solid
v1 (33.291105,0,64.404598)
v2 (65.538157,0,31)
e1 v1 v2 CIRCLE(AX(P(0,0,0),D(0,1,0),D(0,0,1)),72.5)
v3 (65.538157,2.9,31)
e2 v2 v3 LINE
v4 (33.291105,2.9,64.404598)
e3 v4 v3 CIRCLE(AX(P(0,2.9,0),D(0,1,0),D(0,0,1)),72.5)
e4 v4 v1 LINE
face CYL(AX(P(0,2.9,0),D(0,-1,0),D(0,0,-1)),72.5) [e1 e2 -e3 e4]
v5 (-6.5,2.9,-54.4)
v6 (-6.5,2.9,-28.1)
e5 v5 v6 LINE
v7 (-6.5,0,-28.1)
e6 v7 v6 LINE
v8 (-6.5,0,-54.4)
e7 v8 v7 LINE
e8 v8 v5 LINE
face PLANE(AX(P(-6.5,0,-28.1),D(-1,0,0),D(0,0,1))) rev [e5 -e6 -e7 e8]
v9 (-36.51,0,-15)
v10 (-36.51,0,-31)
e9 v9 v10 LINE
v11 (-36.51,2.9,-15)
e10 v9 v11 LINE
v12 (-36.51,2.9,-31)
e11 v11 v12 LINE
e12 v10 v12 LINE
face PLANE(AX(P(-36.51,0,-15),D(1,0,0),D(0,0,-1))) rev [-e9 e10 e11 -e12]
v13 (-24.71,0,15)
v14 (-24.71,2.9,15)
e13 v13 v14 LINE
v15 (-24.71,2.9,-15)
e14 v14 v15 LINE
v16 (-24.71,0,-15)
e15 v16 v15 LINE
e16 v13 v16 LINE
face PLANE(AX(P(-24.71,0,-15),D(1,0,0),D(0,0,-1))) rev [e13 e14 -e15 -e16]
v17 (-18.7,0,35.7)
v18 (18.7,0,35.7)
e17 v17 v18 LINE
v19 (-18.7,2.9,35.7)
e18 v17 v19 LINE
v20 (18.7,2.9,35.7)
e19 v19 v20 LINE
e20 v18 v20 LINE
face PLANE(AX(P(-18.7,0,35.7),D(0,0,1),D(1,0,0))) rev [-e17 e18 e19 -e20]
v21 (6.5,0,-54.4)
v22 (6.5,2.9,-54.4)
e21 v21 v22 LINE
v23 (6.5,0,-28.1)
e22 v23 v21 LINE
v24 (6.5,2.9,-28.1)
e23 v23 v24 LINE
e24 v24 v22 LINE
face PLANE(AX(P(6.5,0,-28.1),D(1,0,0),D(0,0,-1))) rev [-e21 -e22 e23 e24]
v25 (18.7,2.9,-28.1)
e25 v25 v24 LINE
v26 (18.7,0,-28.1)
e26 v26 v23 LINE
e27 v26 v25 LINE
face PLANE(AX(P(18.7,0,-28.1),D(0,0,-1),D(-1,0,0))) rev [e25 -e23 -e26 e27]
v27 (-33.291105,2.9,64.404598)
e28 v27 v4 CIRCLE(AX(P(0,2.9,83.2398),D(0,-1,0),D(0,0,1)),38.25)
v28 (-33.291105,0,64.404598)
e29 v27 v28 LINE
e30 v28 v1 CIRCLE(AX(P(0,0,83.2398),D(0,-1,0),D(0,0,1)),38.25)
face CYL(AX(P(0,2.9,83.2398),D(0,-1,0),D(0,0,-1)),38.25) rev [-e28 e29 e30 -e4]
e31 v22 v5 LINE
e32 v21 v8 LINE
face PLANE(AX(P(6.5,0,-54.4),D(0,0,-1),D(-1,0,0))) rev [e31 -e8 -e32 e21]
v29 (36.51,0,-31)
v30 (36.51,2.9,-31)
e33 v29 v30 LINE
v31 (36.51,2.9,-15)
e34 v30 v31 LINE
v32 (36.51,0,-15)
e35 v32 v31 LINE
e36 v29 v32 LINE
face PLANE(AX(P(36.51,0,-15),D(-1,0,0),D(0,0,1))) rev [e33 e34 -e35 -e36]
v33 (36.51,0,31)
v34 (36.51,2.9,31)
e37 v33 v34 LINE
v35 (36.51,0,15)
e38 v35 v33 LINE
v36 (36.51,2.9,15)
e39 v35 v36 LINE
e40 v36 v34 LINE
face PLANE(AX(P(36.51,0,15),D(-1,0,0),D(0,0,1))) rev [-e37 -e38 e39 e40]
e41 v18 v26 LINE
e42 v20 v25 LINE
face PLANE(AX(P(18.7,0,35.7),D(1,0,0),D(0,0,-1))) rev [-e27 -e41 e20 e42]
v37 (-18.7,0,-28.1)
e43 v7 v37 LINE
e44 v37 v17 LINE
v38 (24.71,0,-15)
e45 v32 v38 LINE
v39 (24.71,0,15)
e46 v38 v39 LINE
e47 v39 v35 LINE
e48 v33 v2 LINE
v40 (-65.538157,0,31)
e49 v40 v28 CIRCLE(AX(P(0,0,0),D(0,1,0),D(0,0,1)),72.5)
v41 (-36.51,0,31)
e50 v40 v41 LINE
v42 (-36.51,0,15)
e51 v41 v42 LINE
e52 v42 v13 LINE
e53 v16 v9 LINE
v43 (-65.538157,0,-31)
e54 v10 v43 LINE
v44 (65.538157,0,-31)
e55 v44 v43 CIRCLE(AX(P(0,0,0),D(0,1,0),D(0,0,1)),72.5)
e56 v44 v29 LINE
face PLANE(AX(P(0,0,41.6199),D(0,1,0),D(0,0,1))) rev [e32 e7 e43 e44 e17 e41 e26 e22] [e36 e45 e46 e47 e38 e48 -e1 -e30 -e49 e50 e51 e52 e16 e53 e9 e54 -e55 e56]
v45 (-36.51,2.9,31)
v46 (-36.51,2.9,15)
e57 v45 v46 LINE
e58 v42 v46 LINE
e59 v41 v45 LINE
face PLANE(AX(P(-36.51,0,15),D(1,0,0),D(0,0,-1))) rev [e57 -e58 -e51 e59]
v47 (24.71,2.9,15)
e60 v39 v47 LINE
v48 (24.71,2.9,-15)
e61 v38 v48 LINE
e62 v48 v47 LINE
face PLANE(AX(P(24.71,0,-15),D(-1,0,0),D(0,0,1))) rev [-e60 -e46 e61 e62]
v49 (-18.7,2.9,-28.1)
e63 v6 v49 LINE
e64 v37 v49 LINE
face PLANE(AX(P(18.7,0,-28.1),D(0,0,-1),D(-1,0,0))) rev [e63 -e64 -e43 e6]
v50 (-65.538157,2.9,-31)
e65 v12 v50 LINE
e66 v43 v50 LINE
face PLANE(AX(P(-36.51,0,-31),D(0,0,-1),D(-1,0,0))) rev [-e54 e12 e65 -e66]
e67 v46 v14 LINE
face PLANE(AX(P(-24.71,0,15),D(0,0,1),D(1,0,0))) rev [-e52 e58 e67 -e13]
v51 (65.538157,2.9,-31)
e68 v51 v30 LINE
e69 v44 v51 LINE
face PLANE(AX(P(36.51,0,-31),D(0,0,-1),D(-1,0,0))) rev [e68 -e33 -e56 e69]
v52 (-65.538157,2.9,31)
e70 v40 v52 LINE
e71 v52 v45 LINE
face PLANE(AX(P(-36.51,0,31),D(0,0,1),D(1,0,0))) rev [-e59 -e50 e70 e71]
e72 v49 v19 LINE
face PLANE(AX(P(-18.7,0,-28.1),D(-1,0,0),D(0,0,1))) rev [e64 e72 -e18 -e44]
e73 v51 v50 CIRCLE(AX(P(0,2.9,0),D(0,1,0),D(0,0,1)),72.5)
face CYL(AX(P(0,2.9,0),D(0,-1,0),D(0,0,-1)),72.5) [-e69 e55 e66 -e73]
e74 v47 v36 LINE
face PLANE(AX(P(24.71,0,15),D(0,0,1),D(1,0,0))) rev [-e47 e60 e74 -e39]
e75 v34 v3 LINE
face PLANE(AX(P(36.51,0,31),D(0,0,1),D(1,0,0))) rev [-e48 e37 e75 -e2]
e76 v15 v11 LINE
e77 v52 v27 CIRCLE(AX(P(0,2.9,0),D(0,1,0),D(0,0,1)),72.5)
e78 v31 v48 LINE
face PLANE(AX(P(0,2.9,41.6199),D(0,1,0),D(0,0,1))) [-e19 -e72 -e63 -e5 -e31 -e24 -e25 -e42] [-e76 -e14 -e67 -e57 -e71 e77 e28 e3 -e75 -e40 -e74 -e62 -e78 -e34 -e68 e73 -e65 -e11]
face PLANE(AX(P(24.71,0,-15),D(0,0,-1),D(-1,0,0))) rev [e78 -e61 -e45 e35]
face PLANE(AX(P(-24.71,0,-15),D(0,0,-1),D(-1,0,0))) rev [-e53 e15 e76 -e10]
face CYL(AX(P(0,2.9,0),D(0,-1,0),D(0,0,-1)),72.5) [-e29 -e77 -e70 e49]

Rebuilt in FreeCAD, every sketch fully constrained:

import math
import FreeCAD as App
import Part
import Sketcher
from FreeCAD import Vector
Q = App.Units.Quantity

doc = App.newDocument("Part")
body = doc.addObject("PartDesign::Body", "Body")

sketch1 = body.newObject("Sketcher::SketchObject", "Sketch")
sketch1.AttachmentSupport = (doc.getObject("XZ_Plane"), [""])
sketch1.MapMode = "FlatFace"
sketch1.addGeometry(Part.ArcOfCircle(Part.Circle(Vector(0, 0, 0), Vector(0, 0, 1), 72), math.radians(117), math.radians(423)), False)
sketch1.addGeometry(Part.ArcOfCircle(Part.Circle(Vector(0, 83, 0), Vector(0, 0, 1), 38), math.radians(-150), math.radians(-30)), False)
sketch1.addConstraint(Sketcher.Constraint("Coincident", 0, 1, 1, 1))
sketch1.addConstraint(Sketcher.Constraint("Coincident", 1, 2, 0, 2))
sketch1.addConstraint(Sketcher.Constraint("Coincident", 0, 3, -1, 1))
sketch1.addConstraint(Sketcher.Constraint("PointOnObject", 1, 3, -2))
sketch1.addConstraint(Sketcher.Constraint("Radius", 0, Q("72.5 mm")))
sketch1.addConstraint(Sketcher.Constraint("Radius", 1, Q("38.25 mm")))
sketch1.addConstraint(Sketcher.Constraint("DistanceY", -1, 1, 1, 3, Q("83.2398 mm")))
pad1 = body.newObject("PartDesign::Pad", "Pad")
pad1.Profile = sketch1
pad1.Length = 2.9
pad1.Reversed = True

sketch2 = body.newObject("Sketcher::SketchObject", "Sketch001")
sketch2.AttachmentSupport = (doc.getObject("XZ_Plane"), [""])
sketch2.MapMode = "FlatFace"
sketch2.AttachmentOffset = App.Placement(Vector(0, 0, -2.9), App.Rotation())
sketch2.addGeometry(Part.LineSegment(Vector(-19, -28, 0), Vector(-19, 36, 0)), False)
sketch2.addGeometry(Part.LineSegment(Vector(-19, 36, 0), Vector(19, 36, 0)), False)
sketch2.addGeometry(Part.LineSegment(Vector(19, 36, 0), Vector(19, -28, 0)), False)
sketch2.addGeometry(Part.LineSegment(Vector(19, -28, 0), Vector(-19, -28, 0)), False)
sketch2.addConstraint(Sketcher.Constraint("Coincident", 0, 2, 1, 1))
sketch2.addConstraint(Sketcher.Constraint("Coincident", 1, 2, 2, 1))
sketch2.addConstraint(Sketcher.Constraint("Coincident", 2, 2, 3, 1))
sketch2.addConstraint(Sketcher.Constraint("Coincident", 3, 2, 0, 1))
sketch2.addConstraint(Sketcher.Constraint("Vertical", 0))
sketch2.addConstraint(Sketcher.Constraint("Horizontal", 1))
sketch2.addConstraint(Sketcher.Constraint("Vertical", 2))
sketch2.addConstraint(Sketcher.Constraint("Horizontal", 3))
sketch2.addConstraint(Sketcher.Constraint("DistanceX", 1, 1, 1, 2, Q("37.4 mm")))
sketch2.addConstraint(Sketcher.Constraint("DistanceY", 0, 1, 0, 2, Q("63.8 mm")))
sketch2.addConstraint(Sketcher.Constraint("DistanceX", 0, 2, -1, 1, Q("18.7 mm")))
sketch2.addConstraint(Sketcher.Constraint("DistanceY", -1, 1, 0, 2, Q("35.7 mm")))
pocket1 = body.newObject("PartDesign::Pocket", "Pocket")
pocket1.Profile = sketch2
pocket1.Type = "ThroughAll"
pocket1.Reversed = True

sketch3 = body.newObject("Sketcher::SketchObject", "Sketch002")
sketch3.AttachmentSupport = (doc.getObject("XZ_Plane"), [""])
sketch3.MapMode = "FlatFace"
sketch3.AttachmentOffset = App.Placement(Vector(0, 0, -2.9), App.Rotation())
sketch3.addGeometry(Part.LineSegment(Vector(-37, 31, 0), Vector(-37, 15, 0)), False)
sketch3.addGeometry(Part.LineSegment(Vector(-37, 15, 0), Vector(-25, 15, 0)), False)
sketch3.addGeometry(Part.LineSegment(Vector(-25, 15, 0), Vector(-25, -15, 0)), False)
sketch3.addGeometry(Part.LineSegment(Vector(-25, -15, 0), Vector(-37, -15, 0)), False)
sketch3.addGeometry(Part.LineSegment(Vector(-37, -15, 0), Vector(-37, -31, 0)), False)
sketch3.addGeometry(Part.LineSegment(Vector(-37, -31, 0), Vector(-66, -31, 0)), False)
sketch3.addGeometry(Part.ArcOfCircle(Part.Circle(Vector(0, 0, 0), Vector(0, 0, 1), 73), math.radians(155), math.radians(205)), False)
sketch3.addGeometry(Part.LineSegment(Vector(-66, 31, 0), Vector(-37, 31, 0)), False)
sketch3.addGeometry(Part.LineSegment(Vector(66, -31, 0), Vector(37, -31, 0)), False)
sketch3.addGeometry(Part.LineSegment(Vector(37, -31, 0), Vector(37, -15, 0)), False)
sketch3.addGeometry(Part.LineSegment(Vector(37, -15, 0), Vector(25, -15, 0)), False)
sketch3.addGeometry(Part.LineSegment(Vector(25, -15, 0), Vector(25, 15, 0)), False)
sketch3.addGeometry(Part.LineSegment(Vector(25, 15, 0), Vector(37, 15, 0)), False)
sketch3.addGeometry(Part.LineSegment(Vector(37, 15, 0), Vector(37, 31, 0)), False)
sketch3.addGeometry(Part.LineSegment(Vector(37, 31, 0), Vector(66, 31, 0)), False)
sketch3.addGeometry(Part.ArcOfCircle(Part.Circle(Vector(0, 0, 0), Vector(0, 0, 1), 73), math.radians(-25), math.radians(25)), False)
sketch3.addConstraint(Sketcher.Constraint("Coincident", 0, 2, 1, 1))
sketch3.addConstraint(Sketcher.Constraint("Coincident", 1, 2, 2, 1))
sketch3.addConstraint(Sketcher.Constraint("Coincident", 2, 2, 3, 1))
sketch3.addConstraint(Sketcher.Constraint("Coincident", 3, 2, 4, 1))
sketch3.addConstraint(Sketcher.Constraint("Coincident", 4, 2, 5, 1))
sketch3.addConstraint(Sketcher.Constraint("Coincident", 5, 2, 6, 2))
sketch3.addConstraint(Sketcher.Constraint("Coincident", 6, 1, 7, 1))
sketch3.addConstraint(Sketcher.Constraint("Coincident", 7, 2, 0, 1))
sketch3.addConstraint(Sketcher.Constraint("Coincident", 8, 2, 9, 1))
sketch3.addConstraint(Sketcher.Constraint("Coincident", 9, 2, 10, 1))
sketch3.addConstraint(Sketcher.Constraint("Coincident", 10, 2, 11, 1))
sketch3.addConstraint(Sketcher.Constraint("Coincident", 11, 2, 12, 1))
sketch3.addConstraint(Sketcher.Constraint("Coincident", 12, 2, 13, 1))
sketch3.addConstraint(Sketcher.Constraint("Coincident", 13, 2, 14, 1))
sketch3.addConstraint(Sketcher.Constraint("Coincident", 14, 2, 15, 2))
sketch3.addConstraint(Sketcher.Constraint("Coincident", 15, 1, 8, 1))
sketch3.addConstraint(Sketcher.Constraint("Vertical", 0))
sketch3.addConstraint(Sketcher.Constraint("Horizontal", 1))
sketch3.addConstraint(Sketcher.Constraint("Vertical", 2))
sketch3.addConstraint(Sketcher.Constraint("Horizontal", 3))
sketch3.addConstraint(Sketcher.Constraint("Vertical", 4))
sketch3.addConstraint(Sketcher.Constraint("Horizontal", 5))
sketch3.addConstraint(Sketcher.Constraint("Horizontal", 7))
sketch3.addConstraint(Sketcher.Constraint("Horizontal", 8))
sketch3.addConstraint(Sketcher.Constraint("Vertical", 9))
sketch3.addConstraint(Sketcher.Constraint("Horizontal", 10))
sketch3.addConstraint(Sketcher.Constraint("Vertical", 11))
sketch3.addConstraint(Sketcher.Constraint("Horizontal", 12))
sketch3.addConstraint(Sketcher.Constraint("Vertical", 13))
sketch3.addConstraint(Sketcher.Constraint("Horizontal", 14))
sketch3.addConstraint(Sketcher.Constraint("Coincident", 6, 3, -1, 1))
sketch3.addConstraint(Sketcher.Constraint("Coincident", 15, 3, -1, 1))
sketch3.addConstraint(Sketcher.Constraint("Equal", 6, 15))
sketch3.addConstraint(Sketcher.Constraint("Symmetric", 7, 2, 8, 2, -1, 1))
sketch3.addConstraint(Sketcher.Constraint("Symmetric", 1, 2, 10, 2, -1, 1))
sketch3.addConstraint(Sketcher.Constraint("Symmetric", 3, 2, 12, 2, -1, 1))
sketch3.addConstraint(Sketcher.Constraint("Symmetric", 4, 2, 8, 2, -2))
sketch3.addConstraint(Sketcher.Constraint("Horizontal", 3, 2, 9, 2))
sketch3.addConstraint(Sketcher.Constraint("Horizontal", 7, 2, 13, 2))
sketch3.addConstraint(Sketcher.Constraint("Radius", 6, Q("72.5 mm")))
sketch3.addConstraint(Sketcher.Constraint("DistanceY", 0, 2, 0, 1, Q("16 mm")))
sketch3.addConstraint(Sketcher.Constraint("DistanceY", 2, 2, 2, 1, Q("30 mm")))
sketch3.addConstraint(Sketcher.Constraint("DistanceX", 1, 1, 1, 2, Q("11.8 mm")))
sketch3.addConstraint(Sketcher.Constraint("DistanceX", 0, 2, -1, 1, Q("36.51 mm")))
pocket2 = body.newObject("PartDesign::Pocket", "Pocket001")
pocket2.Profile = sketch3
pocket2.Type = "ThroughAll"
pocket2.Reversed = True

sketch4 = body.newObject("Sketcher::SketchObject", "Sketch003")
sketch4.AttachmentSupport = (doc.getObject("XZ_Plane"), [""])
sketch4.MapMode = "FlatFace"
sketch4.AttachmentOffset = App.Placement(Vector(0, 0, -2.9), App.Rotation())
sketch4.addGeometry(Part.LineSegment(Vector(-6, -54, 0), Vector(-6, -28, 0)), False)
sketch4.addGeometry(Part.LineSegment(Vector(-6, -28, 0), Vector(6, -28, 0)), False)
sketch4.addGeometry(Part.LineSegment(Vector(6, -28, 0), Vector(6, -54, 0)), False)
sketch4.addGeometry(Part.LineSegment(Vector(6, -54, 0), Vector(-6, -54, 0)), False)
sketch4.addConstraint(Sketcher.Constraint("Coincident", 0, 2, 1, 1))
sketch4.addConstraint(Sketcher.Constraint("Coincident", 1, 2, 2, 1))
sketch4.addConstraint(Sketcher.Constraint("Coincident", 2, 2, 3, 1))
sketch4.addConstraint(Sketcher.Constraint("Coincident", 3, 2, 0, 1))
sketch4.addConstraint(Sketcher.Constraint("Vertical", 0))
sketch4.addConstraint(Sketcher.Constraint("Horizontal", 1))
sketch4.addConstraint(Sketcher.Constraint("Vertical", 2))
sketch4.addConstraint(Sketcher.Constraint("Horizontal", 3))
sketch4.addConstraint(Sketcher.Constraint("DistanceX", 1, 1, 1, 2, Q("13 mm")))
sketch4.addConstraint(Sketcher.Constraint("DistanceY", 0, 1, 0, 2, Q("26.3 mm")))
sketch4.addConstraint(Sketcher.Constraint("DistanceX", 0, 2, -1, 1, Q("6.5 mm")))
sketch4.addConstraint(Sketcher.Constraint("DistanceY", 0, 2, -1, 1, Q("28.1 mm")))
pocket3 = body.newObject("PartDesign::Pocket", "Pocket002")
pocket3.Profile = sketch4
pocket3.Type = "ThroughAll"
pocket3.Reversed = True

doc.recompute()
